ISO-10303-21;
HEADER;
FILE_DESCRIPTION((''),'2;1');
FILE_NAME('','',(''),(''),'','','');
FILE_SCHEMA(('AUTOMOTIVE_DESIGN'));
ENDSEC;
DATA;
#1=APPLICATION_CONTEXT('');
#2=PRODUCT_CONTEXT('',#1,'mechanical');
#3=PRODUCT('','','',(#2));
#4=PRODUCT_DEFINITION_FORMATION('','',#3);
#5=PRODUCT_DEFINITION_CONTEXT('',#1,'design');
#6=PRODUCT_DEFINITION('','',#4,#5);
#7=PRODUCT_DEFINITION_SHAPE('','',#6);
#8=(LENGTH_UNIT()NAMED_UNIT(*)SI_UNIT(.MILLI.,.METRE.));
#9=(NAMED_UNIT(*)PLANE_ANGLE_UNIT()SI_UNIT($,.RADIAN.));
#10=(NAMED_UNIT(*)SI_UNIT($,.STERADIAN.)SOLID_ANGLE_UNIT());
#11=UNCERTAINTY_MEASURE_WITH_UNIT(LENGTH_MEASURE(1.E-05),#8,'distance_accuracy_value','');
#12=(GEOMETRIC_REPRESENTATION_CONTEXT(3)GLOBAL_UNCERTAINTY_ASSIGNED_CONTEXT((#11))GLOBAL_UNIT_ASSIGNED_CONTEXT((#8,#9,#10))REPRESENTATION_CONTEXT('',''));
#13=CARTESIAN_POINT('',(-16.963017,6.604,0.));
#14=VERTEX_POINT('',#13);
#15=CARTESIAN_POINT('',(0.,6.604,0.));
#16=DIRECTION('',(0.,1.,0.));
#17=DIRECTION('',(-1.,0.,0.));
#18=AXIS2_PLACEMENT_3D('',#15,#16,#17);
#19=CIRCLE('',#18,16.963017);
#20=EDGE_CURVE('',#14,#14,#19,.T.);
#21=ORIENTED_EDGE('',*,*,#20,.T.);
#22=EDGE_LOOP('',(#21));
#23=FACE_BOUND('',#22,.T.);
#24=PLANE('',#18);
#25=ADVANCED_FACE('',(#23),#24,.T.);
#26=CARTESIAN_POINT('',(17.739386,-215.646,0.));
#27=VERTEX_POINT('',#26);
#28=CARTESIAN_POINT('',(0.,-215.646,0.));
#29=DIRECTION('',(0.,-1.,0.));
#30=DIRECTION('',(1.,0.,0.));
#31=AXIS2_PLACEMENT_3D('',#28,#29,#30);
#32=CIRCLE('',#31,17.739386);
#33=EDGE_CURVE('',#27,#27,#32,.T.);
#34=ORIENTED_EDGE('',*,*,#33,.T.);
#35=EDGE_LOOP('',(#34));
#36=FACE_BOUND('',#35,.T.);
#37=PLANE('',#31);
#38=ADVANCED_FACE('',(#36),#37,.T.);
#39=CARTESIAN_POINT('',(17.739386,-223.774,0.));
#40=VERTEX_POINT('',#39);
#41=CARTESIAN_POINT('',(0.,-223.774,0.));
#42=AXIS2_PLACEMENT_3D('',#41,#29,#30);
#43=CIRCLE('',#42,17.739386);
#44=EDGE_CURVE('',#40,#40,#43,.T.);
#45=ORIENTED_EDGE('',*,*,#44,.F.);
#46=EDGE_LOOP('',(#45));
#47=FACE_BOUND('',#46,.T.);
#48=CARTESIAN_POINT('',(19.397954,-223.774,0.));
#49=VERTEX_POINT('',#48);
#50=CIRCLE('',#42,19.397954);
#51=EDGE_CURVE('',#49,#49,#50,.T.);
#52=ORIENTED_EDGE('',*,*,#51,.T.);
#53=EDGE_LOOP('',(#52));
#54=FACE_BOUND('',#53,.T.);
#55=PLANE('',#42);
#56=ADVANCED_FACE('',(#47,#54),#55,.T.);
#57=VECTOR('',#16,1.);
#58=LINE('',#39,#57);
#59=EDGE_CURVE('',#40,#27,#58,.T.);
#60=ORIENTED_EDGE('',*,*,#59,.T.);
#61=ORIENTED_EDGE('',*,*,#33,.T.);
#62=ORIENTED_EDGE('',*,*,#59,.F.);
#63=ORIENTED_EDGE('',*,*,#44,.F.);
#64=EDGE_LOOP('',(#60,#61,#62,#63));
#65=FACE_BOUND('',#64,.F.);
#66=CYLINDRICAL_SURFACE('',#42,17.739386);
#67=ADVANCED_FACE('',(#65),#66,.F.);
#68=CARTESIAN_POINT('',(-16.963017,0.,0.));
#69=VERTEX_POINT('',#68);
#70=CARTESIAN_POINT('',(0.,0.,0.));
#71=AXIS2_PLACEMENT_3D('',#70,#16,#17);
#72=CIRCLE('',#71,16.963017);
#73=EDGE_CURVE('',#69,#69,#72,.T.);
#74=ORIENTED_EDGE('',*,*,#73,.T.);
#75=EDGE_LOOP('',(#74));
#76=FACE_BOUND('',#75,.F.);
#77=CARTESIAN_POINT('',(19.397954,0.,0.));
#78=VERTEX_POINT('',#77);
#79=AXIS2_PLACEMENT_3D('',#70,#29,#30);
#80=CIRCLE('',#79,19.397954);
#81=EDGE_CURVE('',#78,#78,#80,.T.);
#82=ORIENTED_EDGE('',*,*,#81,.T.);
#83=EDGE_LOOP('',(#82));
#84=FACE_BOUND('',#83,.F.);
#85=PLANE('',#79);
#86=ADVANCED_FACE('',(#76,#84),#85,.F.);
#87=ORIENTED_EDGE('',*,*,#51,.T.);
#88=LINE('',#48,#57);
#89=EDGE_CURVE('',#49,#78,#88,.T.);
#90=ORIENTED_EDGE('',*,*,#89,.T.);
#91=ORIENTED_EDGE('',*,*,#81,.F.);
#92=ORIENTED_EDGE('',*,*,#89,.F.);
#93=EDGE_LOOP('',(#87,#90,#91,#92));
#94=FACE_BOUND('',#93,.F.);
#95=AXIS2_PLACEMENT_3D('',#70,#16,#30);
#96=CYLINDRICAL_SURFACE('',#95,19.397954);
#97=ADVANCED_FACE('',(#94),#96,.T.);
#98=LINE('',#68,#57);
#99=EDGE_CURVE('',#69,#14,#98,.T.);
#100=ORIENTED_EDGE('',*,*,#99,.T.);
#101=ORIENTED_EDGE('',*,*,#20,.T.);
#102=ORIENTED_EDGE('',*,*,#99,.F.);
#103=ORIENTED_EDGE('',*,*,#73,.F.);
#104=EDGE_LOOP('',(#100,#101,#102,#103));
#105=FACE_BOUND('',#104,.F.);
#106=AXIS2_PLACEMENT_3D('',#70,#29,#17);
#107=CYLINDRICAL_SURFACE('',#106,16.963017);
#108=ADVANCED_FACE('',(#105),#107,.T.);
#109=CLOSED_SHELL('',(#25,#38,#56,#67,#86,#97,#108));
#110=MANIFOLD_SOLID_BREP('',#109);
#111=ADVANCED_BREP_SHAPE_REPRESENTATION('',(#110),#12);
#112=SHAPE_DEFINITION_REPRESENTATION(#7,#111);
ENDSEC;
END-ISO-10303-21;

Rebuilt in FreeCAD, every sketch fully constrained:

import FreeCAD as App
import Part
import Sketcher
from FreeCAD import Vector

doc = App.newDocument("Part")
params = doc.addObject("Spreadsheet::Sheet", "Params")
for row, (alias, value) in enumerate([
    ("pad1_length", "8.81 in"),
    ("pad2_length", "0.26 in"),
    ("pad3_length", "0.2 in"),
    ("pocket1_length", "0.32 in"),
], start=1):
    params.set(f"A{row}", alias)
    params.set(f"B{row}", "=" + value)
    params.setAlias(f"B{row}", alias)

body = doc.addObject("PartDesign::Body", "Body")

# Sketch on XZ plane
sketch1 = body.newObject("Sketcher::SketchObject", "Sketch")
sketch1.AttachmentSupport = (doc.getObject("XZ_Plane"), [""])
sketch1.MapMode = "FlatFace"
sketch1.addGeometry(Part.Circle(Vector(0, 0, 0), Vector(0, 0, 1), 19), False)
sketch1.addConstraint([
    Sketcher.Constraint("Coincident", 0, 3, -1, 1),
    Sketcher.Constraint("Diameter", 0, 38.795908),
])
pad1 = body.newObject("PartDesign::Pad", "Pad")
pad1.Profile = sketch1
pad1.setExpression("Length", "Params.pad1_length")

# Sketch on XZ plane
sketch2 = body.newObject("Sketcher::SketchObject", "Sketch001")
sketch2.AttachmentSupport = (doc.getObject("XZ_Plane"), [""])
sketch2.MapMode = "FlatFace"
sketch2.addGeometry(Part.Circle(Vector(0, 0, 0), Vector(0, 0, 1), 17), False)
sketch2.addConstraint([
    Sketcher.Constraint("Coincident", 0, 3, -1, 1),
    Sketcher.Constraint("Diameter", 0, 33.926034),
])
pad2 = body.newObject("PartDesign::Pad", "Pad001")
pad2.Profile = sketch2
pad2.setExpression("Length", "Params.pad2_length")
pad2.Reversed = True

# Sketch on XZ plane
sketch3 = body.newObject("Sketcher::SketchObject", "Sketch002")
sketch3.AttachmentSupport = (doc.getObject("XZ_Plane"), [""])
sketch3.MapMode = "FlatFace"
sketch3.addGeometry(Part.Circle(Vector(0, 0, 0), Vector(0, 0, 1), 19), False)
sketch3.addConstraint([
    Sketcher.Constraint("Coincident", 0, 3, -1, 1),
    Sketcher.Constraint("Diameter", 0, 38.795908),
])
pad3 = body.newObject("PartDesign::Pad", "Pad002")
pad3.Profile = sketch3
pad3.setExpression("Length", "Params.pad3_length")

# Sketch on XZ plane
sketch4 = body.newObject("Sketcher::SketchObject", "Sketch003")
sketch4.AttachmentSupport = (doc.getObject("XZ_Plane"), [""])
sketch4.MapMode = "FlatFace"
sketch4.AttachmentOffset = App.Placement(Vector(0, 0, 8.81 * 25.4), App.Rotation())
sketch4.addGeometry(Part.Circle(Vector(0, 0, 0), Vector(0, 0, 1), 18), False)
sketch4.addConstraint([
    Sketcher.Constraint("Coincident", 0, 3, -1, 1),
    Sketcher.Constraint("Diameter", 0, 35.478772),
])
pocket1 = body.newObject("PartDesign::Pocket", "Pocket")
pocket1.Profile = sketch4
pocket1.setExpression("Length", "Params.pocket1_length")

doc.recompute()
